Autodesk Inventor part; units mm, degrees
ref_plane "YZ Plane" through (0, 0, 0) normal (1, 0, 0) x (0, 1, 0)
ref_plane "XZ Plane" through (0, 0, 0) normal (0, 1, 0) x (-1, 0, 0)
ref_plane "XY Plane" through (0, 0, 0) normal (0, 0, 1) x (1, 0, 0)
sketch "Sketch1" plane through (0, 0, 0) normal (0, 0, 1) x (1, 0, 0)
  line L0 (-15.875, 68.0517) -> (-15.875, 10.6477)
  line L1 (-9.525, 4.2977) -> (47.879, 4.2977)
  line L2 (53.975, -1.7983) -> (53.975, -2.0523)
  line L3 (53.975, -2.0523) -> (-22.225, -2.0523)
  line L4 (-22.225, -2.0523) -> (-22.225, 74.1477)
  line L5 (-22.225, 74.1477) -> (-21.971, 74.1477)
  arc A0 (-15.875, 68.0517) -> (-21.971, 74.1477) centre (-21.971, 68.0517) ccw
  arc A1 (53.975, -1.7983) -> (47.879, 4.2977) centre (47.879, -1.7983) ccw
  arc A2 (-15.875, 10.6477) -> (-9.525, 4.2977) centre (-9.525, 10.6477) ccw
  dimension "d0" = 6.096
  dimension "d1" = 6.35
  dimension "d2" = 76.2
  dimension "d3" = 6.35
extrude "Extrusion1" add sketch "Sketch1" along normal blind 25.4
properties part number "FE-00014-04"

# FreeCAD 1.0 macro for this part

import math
import FreeCAD as App
import Part
import Sketcher
Q = App.Units.Quantity

doc = App.newDocument("Part")
body = doc.addObject("PartDesign::Body", "Body")

# Sketch on XY plane
sketch1 = body.newObject("Sketcher::SketchObject", "Sketch")
sketch1.AttachmentSupport = (doc.getObject("XY_Plane"), [""])
sketch1.MapMode = "FlatFace"
sketch1.addGeometry(Part.LineSegment(App.Vector(-15.88, 10.65, 0), App.Vector(-15.88, 68.05, 0)), False)
sketch1.addGeometry(Part.ArcOfCircle(Part.Circle(App.Vector(-21.97, 68.05, 0), App.Vector(0, 0, 1), 6.1), math.radians(0), math.radians(90)), False)
sketch1.addGeometry(Part.LineSegment(App.Vector(-21.97, 74.15, 0), App.Vector(-22.23, 74.15, 0)), False)
sketch1.addGeometry(Part.LineSegment(App.Vector(-22.23, 74.15, 0), App.Vector(-22.23, -2.05, 0)), False)
sketch1.addGeometry(Part.LineSegment(App.Vector(-22.23, -2.05, 0), App.Vector(53.98, -2.05, 0)), False)
sketch1.addGeometry(Part.LineSegment(App.Vector(53.98, -2.05, 0), App.Vector(53.98, -1.8, 0)), False)
sketch1.addGeometry(Part.ArcOfCircle(Part.Circle(App.Vector(47.88, -1.8, 0), App.Vector(0, 0, 1), 6.1), math.radians(0), math.radians(90)), False)
sketch1.addGeometry(Part.LineSegment(App.Vector(47.88, 4.3, 0), App.Vector(-9.53, 4.3, 0)), False)
sketch1.addGeometry(Part.ArcOfCircle(Part.Circle(App.Vector(-9.53, 10.65, 0), App.Vector(0, 0, 1), 6.35), math.radians(180), math.radians(270)), False)
sketch1.addConstraint(Sketcher.Constraint("Tangent", 0, 2, 1, 1))
sketch1.addConstraint(Sketcher.Constraint("Tangent", 1, 2, 2, 1))
sketch1.addConstraint(Sketcher.Constraint("Coincident", 2, 2, 3, 1))
sketch1.addConstraint(Sketcher.Constraint("Coincident", 3, 2, 4, 1))
sketch1.addConstraint(Sketcher.Constraint("Coincident", 4, 2, 5, 1))
sketch1.addConstraint(Sketcher.Constraint("Tangent", 5, 2, 6, 1))
sketch1.addConstraint(Sketcher.Constraint("Tangent", 6, 2, 7, 1))
sketch1.addConstraint(Sketcher.Constraint("Tangent", 7, 2, 8, 2))
sketch1.addConstraint(Sketcher.Constraint("Tangent", 8, 1, 0, 1))
sketch1.addConstraint(Sketcher.Constraint("Vertical", 0))
sketch1.addConstraint(Sketcher.Constraint("Horizontal", 2))
sketch1.addConstraint(Sketcher.Constraint("Vertical", 3))
sketch1.addConstraint(Sketcher.Constraint("Horizontal", 4))
sketch1.addConstraint(Sketcher.Constraint("Vertical", 5))
sketch1.addConstraint(Sketcher.Constraint("Horizontal", 7))
sketch1.addConstraint(Sketcher.Constraint("Equal", 1, 6))
sketch1.addConstraint(Sketcher.Constraint("Equal", 7, 0))
sketch1.addConstraint(Sketcher.Constraint("Equal", 4, 3))
sketch1.addConstraint(Sketcher.Constraint("DistanceX", 4, 1, 4, 2, Q("3 in")))
sketch1.addConstraint(Sketcher.Constraint("Radius", 1, Q("0.24 in")))
sketch1.addConstraint(Sketcher.Constraint("Radius", 8, Q("0.25 in")))
sketch1.addConstraint(Sketcher.Constraint("DistanceX", 2, 2, 0, 2, Q("0.25 in")))
sketch1.addConstraint(Sketcher.Constraint("DistanceX", 1, 3, -1, 1, Q("0.865 in")))
sketch1.addConstraint(Sketcher.Constraint("DistanceY", -1, 1, 1, 3, Q("2.6792 in")))
pad1 = body.newObject("PartDesign::Pad", "Pad")
pad1.Profile = sketch1
pad1.Length = Q("1 in")

doc.recompute()
